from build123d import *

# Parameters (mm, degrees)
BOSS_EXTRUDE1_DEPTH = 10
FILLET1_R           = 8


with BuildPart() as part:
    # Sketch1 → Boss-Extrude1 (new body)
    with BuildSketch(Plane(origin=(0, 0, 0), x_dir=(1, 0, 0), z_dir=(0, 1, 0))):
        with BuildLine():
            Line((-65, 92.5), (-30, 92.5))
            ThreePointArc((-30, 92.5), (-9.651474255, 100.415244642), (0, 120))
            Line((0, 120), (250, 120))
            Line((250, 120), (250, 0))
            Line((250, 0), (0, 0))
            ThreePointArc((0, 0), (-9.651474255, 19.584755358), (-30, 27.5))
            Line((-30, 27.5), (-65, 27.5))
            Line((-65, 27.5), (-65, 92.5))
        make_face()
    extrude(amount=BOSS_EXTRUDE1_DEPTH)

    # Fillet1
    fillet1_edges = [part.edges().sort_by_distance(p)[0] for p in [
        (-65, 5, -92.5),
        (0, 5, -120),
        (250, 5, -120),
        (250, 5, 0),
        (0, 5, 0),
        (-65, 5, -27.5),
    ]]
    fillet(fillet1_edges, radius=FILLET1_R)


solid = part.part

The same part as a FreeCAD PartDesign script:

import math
import FreeCAD as App
import Part
import Sketcher
from FreeCAD import Vector


def edges_at(feature, points):
    """Names of the edges that pass closest to the given points."""
    edges = feature.Shape.Edges
    near = lambda p: min(range(len(edges)), key=lambda i: edges[i].distToShape(Part.Vertex(*p))[0])
    return sorted({f"Edge{near(p) + 1}" for p in points})

doc = App.newDocument("Part")
body = doc.addObject("PartDesign::Body", "Body")

sketch1 = body.newObject("Sketcher::SketchObject", "Sketch")
sketch1.AttachmentSupport = (doc.getObject("XZ_Plane"), [""])
sketch1.MapMode = "FlatFace"
sketch1.addGeometry(Part.LineSegment(Vector(-30, -92, 0), Vector(-65, -92, 0)), False)
sketch1.addGeometry(Part.LineSegment(Vector(-65, -92, 0), Vector(-65, -28, 0)), False)
sketch1.addGeometry(Part.LineSegment(Vector(-65, -28, 0), Vector(-30, -28, 0)), False)
sketch1.addGeometry(Part.ArcOfCircle(Part.Circle(Vector(-30, 3, 0), Vector(0, 0, 1), 30), math.radians(-90), math.radians(-5)), False)
sketch1.addGeometry(Part.LineSegment(Vector(0, 0, 0), Vector(250, 0, 0)), False)
sketch1.addGeometry(Part.LineSegment(Vector(250, 0, 0), Vector(250, -120, 0)), False)
sketch1.addGeometry(Part.LineSegment(Vector(250, -120, 0), Vector(0, -120, 0)), False)
sketch1.addGeometry(Part.ArcOfCircle(Part.Circle(Vector(-30, -123, 0), Vector(0, 0, 1), 30), math.radians(5), math.radians(90)), False)
sketch1.addConstraint(Sketcher.Constraint("Coincident", 0, 2, 1, 1))
sketch1.addConstraint(Sketcher.Constraint("Coincident", 1, 2, 2, 1))
sketch1.addConstraint(Sketcher.Constraint("Tangent", 2, 2, 3, 1))
sketch1.addConstraint(Sketcher.Constraint("Coincident", 3, 2, 4, 1))
sketch1.addConstraint(Sketcher.Constraint("Coincident", 4, 2, 5, 1))
sketch1.addConstraint(Sketcher.Constraint("Coincident", 5, 2, 6, 1))
sketch1.addConstraint(Sketcher.Constraint("Coincident", 6, 2, 7, 1))
sketch1.addConstraint(Sketcher.Constraint("Tangent", 7, 2, 0, 1))
sketch1.addConstraint(Sketcher.Constraint("Horizontal", 0))
sketch1.addConstraint(Sketcher.Constraint("Vertical", 1))
sketch1.addConstraint(Sketcher.Constraint("Horizontal", 2))
sketch1.addConstraint(Sketcher.Constraint("Horizontal", 4))
sketch1.addConstraint(Sketcher.Constraint("Vertical", 5))
sketch1.addConstraint(Sketcher.Constraint("Horizontal", 6))
sketch1.addConstraint(Sketcher.Constraint("Coincident", 3, 2, -1, 1))
sketch1.addConstraint(Sketcher.Constraint("Equal", 3, 7))
sketch1.addConstraint(Sketcher.Constraint("PointOnObject", 6, 2, -2))
sketch1.addConstraint(Sketcher.Constraint("Vertical", 3, 3, 7, 3))
sketch1.addConstraint(Sketcher.Constraint("DistanceX", 0, 2, 0, 1, 35.0))
sketch1.addConstraint(Sketcher.Constraint("DistanceX", 4, 1, 4, 2, 250.0))
sketch1.addConstraint(Sketcher.Constraint("DistanceY", 1, 1, 1, 2, 65.0))
sketch1.addConstraint(Sketcher.Constraint("DistanceY", 5, 2, 5, 1, 120.0))
sketch1.addConstraint(Sketcher.Constraint("DistanceX", 3, 3, -1, 1, 30.0))
pad1 = body.newObject("PartDesign::Pad", "Pad")
pad1.Profile = sketch1
pad1.Length = 10
pad1.Reversed = True
doc.recompute()

fillet = body.newObject("PartDesign::Fillet", "Fillet")
fillet.Base = (pad1, edges_at(pad1, [
    (-65, 5, -92.5),
    (0, 5, -120),
    (250, 5, -120),
    (250, 5, 0),
    (0, 5, 0),
    (-65, 5, -27.5),
]))
fillet.Radius = 8

doc.recompute()
